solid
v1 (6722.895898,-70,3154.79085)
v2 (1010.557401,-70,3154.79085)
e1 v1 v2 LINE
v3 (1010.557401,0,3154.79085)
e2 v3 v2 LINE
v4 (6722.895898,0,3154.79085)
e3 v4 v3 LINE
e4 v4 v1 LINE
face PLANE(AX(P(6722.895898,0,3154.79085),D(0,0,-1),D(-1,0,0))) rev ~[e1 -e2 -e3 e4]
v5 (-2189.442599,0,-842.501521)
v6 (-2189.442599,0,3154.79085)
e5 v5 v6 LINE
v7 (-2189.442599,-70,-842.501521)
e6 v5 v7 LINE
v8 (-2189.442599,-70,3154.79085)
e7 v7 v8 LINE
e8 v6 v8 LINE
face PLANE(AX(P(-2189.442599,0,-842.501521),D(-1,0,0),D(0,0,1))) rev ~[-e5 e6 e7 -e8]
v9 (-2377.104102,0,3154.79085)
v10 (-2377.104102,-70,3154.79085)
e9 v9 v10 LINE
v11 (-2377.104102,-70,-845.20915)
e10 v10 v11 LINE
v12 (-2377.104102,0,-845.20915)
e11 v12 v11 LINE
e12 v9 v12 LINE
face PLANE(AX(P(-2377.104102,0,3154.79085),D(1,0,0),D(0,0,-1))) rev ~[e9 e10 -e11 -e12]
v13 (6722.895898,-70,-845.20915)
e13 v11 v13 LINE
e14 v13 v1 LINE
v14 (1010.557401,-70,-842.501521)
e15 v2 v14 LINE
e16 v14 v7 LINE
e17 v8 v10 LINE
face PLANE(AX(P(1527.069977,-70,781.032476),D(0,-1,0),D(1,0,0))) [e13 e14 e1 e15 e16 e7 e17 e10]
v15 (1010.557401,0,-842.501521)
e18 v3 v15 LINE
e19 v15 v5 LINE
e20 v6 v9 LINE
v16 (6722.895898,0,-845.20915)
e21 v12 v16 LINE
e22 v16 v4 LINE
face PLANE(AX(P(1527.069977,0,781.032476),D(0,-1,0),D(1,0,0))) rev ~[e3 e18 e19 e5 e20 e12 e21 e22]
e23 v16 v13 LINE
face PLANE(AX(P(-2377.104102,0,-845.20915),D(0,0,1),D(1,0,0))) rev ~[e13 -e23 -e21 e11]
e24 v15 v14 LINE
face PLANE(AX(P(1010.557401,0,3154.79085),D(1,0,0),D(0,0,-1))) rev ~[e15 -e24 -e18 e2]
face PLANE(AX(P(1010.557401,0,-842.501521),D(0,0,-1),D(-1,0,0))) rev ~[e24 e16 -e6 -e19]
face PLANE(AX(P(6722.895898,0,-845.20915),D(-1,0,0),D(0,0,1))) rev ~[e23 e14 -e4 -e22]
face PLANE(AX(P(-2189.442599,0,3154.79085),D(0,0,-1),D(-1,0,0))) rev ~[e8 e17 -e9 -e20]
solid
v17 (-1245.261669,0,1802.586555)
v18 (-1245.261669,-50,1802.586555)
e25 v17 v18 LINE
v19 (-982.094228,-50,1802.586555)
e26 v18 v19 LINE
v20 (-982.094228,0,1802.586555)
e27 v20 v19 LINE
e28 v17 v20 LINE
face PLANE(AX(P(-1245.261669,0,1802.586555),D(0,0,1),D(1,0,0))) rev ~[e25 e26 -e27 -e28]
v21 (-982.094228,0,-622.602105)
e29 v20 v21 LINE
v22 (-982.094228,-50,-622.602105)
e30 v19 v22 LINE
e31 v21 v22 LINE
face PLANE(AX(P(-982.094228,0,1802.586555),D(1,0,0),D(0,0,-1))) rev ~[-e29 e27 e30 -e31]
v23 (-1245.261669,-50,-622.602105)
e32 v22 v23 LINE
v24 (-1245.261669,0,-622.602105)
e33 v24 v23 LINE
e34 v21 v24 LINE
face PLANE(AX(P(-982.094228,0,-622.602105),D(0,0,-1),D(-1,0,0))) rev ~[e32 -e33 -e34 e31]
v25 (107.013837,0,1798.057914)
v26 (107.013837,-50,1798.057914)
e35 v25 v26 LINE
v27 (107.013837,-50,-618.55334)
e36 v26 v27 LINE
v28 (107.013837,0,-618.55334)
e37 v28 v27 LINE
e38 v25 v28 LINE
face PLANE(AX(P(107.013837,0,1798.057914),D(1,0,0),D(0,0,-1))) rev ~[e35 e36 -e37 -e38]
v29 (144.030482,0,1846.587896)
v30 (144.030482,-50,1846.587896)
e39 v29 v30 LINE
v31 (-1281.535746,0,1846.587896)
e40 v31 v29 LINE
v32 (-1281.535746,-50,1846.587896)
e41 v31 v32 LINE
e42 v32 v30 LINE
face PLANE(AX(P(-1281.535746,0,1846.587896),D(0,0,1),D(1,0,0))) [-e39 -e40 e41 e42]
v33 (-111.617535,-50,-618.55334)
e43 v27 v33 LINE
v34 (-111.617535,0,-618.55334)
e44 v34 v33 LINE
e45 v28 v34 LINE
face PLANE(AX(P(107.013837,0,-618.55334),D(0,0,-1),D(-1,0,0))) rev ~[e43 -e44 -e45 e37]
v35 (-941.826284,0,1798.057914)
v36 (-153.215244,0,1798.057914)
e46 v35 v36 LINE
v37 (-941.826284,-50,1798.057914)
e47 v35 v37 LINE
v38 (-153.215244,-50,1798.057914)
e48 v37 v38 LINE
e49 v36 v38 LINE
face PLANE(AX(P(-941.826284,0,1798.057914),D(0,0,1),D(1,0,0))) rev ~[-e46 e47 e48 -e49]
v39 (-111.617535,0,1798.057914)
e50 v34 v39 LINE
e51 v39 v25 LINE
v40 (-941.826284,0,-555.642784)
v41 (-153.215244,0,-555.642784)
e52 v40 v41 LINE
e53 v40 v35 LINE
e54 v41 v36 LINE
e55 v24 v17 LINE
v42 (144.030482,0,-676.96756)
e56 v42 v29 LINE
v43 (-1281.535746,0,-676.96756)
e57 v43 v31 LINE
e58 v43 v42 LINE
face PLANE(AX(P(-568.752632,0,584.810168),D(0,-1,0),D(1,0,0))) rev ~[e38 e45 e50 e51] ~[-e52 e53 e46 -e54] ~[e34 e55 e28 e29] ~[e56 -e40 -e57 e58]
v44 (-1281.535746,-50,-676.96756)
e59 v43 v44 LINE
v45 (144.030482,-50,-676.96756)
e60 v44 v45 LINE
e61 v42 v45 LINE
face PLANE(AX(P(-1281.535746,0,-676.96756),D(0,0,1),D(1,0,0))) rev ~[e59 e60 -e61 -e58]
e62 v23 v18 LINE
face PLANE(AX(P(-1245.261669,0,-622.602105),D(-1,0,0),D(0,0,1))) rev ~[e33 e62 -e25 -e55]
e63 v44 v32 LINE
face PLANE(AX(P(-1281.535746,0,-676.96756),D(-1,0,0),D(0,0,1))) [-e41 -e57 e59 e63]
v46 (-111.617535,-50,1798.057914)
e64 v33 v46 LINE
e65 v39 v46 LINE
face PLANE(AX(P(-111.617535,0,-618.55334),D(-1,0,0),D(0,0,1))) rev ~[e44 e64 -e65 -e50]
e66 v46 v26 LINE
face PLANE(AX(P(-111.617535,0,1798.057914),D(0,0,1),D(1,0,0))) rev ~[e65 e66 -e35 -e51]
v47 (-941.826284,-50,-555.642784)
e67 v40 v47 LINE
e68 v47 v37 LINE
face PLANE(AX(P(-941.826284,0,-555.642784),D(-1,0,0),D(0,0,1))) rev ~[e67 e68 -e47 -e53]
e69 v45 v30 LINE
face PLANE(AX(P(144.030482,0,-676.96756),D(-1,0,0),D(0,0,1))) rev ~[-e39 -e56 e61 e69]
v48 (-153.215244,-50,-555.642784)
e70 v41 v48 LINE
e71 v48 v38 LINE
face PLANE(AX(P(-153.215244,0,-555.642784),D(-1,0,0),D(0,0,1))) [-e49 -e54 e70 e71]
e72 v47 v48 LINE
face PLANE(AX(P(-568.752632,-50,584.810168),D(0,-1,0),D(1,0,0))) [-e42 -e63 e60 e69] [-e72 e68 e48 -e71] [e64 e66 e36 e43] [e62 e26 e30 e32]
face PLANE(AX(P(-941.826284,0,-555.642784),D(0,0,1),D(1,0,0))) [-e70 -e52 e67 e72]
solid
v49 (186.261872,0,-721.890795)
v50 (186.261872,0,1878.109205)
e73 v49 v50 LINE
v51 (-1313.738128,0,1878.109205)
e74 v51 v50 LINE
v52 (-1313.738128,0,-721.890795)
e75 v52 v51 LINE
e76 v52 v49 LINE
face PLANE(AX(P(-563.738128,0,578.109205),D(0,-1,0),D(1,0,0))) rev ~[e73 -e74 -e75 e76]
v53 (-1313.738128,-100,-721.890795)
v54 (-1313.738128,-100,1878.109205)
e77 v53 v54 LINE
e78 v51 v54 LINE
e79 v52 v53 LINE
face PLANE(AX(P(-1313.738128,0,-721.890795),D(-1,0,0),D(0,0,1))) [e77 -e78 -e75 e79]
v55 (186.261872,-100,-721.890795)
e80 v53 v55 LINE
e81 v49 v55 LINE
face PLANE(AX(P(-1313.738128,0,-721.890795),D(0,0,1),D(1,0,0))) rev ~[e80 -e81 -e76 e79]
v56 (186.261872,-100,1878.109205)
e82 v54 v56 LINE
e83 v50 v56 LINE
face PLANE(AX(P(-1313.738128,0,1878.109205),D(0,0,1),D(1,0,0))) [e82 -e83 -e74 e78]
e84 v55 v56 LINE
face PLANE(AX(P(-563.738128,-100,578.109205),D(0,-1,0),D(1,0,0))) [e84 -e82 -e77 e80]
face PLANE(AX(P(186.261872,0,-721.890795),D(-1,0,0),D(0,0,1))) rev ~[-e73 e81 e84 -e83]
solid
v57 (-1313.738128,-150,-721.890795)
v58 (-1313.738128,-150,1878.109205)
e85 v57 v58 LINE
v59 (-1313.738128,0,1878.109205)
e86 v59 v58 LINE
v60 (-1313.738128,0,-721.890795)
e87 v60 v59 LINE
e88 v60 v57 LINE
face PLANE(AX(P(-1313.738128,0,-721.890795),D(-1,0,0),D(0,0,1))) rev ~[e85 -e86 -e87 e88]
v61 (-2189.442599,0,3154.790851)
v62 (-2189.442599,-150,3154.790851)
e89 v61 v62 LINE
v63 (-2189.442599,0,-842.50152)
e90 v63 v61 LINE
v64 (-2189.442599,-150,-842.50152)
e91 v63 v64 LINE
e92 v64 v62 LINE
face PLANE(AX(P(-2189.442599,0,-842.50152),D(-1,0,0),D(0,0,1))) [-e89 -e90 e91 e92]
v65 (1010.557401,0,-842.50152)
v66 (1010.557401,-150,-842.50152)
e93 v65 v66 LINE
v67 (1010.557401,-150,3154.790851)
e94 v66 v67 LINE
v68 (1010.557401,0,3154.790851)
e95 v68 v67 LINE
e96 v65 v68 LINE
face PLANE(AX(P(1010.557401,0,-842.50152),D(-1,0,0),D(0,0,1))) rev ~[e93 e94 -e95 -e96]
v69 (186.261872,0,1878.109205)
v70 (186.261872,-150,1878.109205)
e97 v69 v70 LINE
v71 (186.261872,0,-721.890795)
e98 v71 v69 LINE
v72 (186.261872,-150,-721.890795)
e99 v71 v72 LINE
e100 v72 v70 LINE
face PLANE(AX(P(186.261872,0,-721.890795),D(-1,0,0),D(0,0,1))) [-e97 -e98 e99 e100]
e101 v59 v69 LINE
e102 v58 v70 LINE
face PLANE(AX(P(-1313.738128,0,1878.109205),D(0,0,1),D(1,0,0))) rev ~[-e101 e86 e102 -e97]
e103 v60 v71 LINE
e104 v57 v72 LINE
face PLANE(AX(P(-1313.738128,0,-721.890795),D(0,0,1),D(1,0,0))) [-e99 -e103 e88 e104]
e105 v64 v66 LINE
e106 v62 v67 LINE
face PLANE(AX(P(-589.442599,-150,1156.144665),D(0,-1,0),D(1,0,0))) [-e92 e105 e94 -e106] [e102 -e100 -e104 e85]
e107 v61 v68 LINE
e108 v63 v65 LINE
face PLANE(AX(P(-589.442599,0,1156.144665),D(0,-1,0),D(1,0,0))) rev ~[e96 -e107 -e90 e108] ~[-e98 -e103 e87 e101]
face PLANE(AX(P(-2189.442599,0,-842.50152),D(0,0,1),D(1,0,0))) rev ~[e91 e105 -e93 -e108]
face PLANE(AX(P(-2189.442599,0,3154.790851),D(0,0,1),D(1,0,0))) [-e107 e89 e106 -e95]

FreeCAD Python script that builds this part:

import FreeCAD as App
import Part
import Sketcher


def add_polygon(sketch, points):
    """Adds a closed chain of lines whose ends are joined by coincident constraints."""
    first, n = sketch.GeometryCount, len(points)
    for a, b in zip(points, points[1:] + points[:1]):
        sketch.addGeometry(Part.LineSegment(App.Vector(*a, 0), App.Vector(*b, 0)), False)
    for i in range(n):
        sketch.addConstraint(Sketcher.Constraint("Coincident", first + i, 2, first + (i + 1) % n, 1))

doc = App.newDocument("Part")
body = doc.addObject("PartDesign::Body", "Body")

sketch1 = body.newObject("Sketcher::SketchObject", "Sketch")
sketch1.AttachmentSupport = (doc.getObject("XZ_Plane"), [""])
sketch1.MapMode = "FlatFace"
add_polygon(sketch1, [(-2189.442599, 3154.79085), (-2377.104102, 3154.79085), (-2377.104102, -845.20915), (6722.895898, -845.20915), (6722.895898, 3154.79085), (1010.557401, 3154.79085), (1010.557401, -842.501521), (-2189.442599, -842.501521)])
sketch1.addConstraint([
    Sketcher.Constraint("Horizontal", 0),
    Sketcher.Constraint("Vertical", 1),
    Sketcher.Constraint("Horizontal", 2),
    Sketcher.Constraint("Vertical", 3),
    Sketcher.Constraint("Horizontal", 4),
    Sketcher.Constraint("Vertical", 5),
    Sketcher.Constraint("Horizontal", 6),
    Sketcher.Constraint("Vertical", 7),
    Sketcher.Constraint("Horizontal", 0, 2, 3, 2),
    Sketcher.Constraint("DistanceX", 2, 1, 2, 2, 9100.0),
    Sketcher.Constraint("DistanceX", 6, 2, 6, 1, 3200.0),
    Sketcher.Constraint("DistanceY", 1, 2, 1, 1, 4000.0),
    Sketcher.Constraint("DistanceY", 5, 2, 5, 1, 3997.292371),
    Sketcher.Constraint("DistanceX", 0, 2, -1, 1, 2377.104102),
    Sketcher.Constraint("DistanceX", -1, 1, 4, 2, 1010.557401),
    Sketcher.Constraint("DistanceY", -1, 1, 0, 2, 3154.79085),
])
pad1 = body.newObject("PartDesign::Pad", "Pad")
pad1.Profile = sketch1
pad1.Length = 70
body2 = doc.addObject("PartDesign::Body", "Body001")

sketch2 = body2.newObject("Sketcher::SketchObject", "Sketch001")
sketch2.AttachmentSupport = (doc.getObject("XZ_Plane001"), [""])
sketch2.MapMode = "FlatFace"
add_polygon(sketch2, [(-2189.442599, 3154.790851), (-2189.442599, -842.50152), (1010.557401, -842.50152), (1010.557401, 3154.790851)])
add_polygon(sketch2, [(186.261872, -721.890795), (-1313.738128, -721.890795), (-1313.738128, 1878.109205), (186.261872, 1878.109205)])
sketch2.addConstraint([
    Sketcher.Constraint("Vertical", 0),
    Sketcher.Constraint("Horizontal", 1),
    Sketcher.Constraint("Vertical", 2),
    Sketcher.Constraint("Horizontal", 3),
    Sketcher.Constraint("Horizontal", 4),
    Sketcher.Constraint("Vertical", 5),
    Sketcher.Constraint("Horizontal", 6),
    Sketcher.Constraint("Vertical", 7),
    Sketcher.Constraint("DistanceX", 1, 1, 1, 2, 3200.0),
    Sketcher.Constraint("DistanceX", 4, 2, 4, 1, 1500.0),
    Sketcher.Constraint("DistanceY", 5, 1, 5, 2, 2600.0),
    Sketcher.Constraint("DistanceY", 0, 2, 0, 1, 3997.292371),
    Sketcher.Constraint("DistanceX", 0, 2, -1, 1, 2189.442599),
    Sketcher.Constraint("DistanceY", 0, 2, -1, 1, 842.50152),
    Sketcher.Constraint("DistanceX", 4, 2, -1, 1, 1313.738128),
    Sketcher.Constraint("DistanceY", 4, 2, -1, 1, 721.890795),
])
pad2 = body2.newObject("PartDesign::Pad", "Pad001")
pad2.Profile = sketch2
pad2.Length = 150
body3 = doc.addObject("PartDesign::Body", "Body002")

sketch3 = body3.newObject("Sketcher::SketchObject", "Sketch002")
sketch3.AttachmentSupport = (doc.getObject("XZ_Plane002"), [""])
sketch3.MapMode = "FlatFace"
add_polygon(sketch3, [(-1313.738128, 1878.109205), (-1313.738128, -721.890795), (186.261872, -721.890795), (186.261872, 1878.109205)])
sketch3.addConstraint([
    Sketcher.Constraint("Vertical", 0),
    Sketcher.Constraint("Horizontal", 1),
    Sketcher.Constraint("Vertical", 2),
    Sketcher.Constraint("Horizontal", 3),
    Sketcher.Constraint("DistanceX", 1, 1, 1, 2, 1500.0),
    Sketcher.Constraint("DistanceY", 0, 2, 0, 1, 2600.0),
    Sketcher.Constraint("DistanceX", 0, 2, -1, 1, 1313.738128),
    Sketcher.Constraint("DistanceY", 0, 2, -1, 1, 721.890795),
])
pad3 = body3.newObject("PartDesign::Pad", "Pad002")
pad3.Profile = sketch3
pad3.Length = 100
body4 = doc.addObject("PartDesign::Body", "Body003")

sketch4 = body4.newObject("Sketcher::SketchObject", "Sketch003")
sketch4.AttachmentSupport = (doc.getObject("XZ_Plane003"), [""])
sketch4.MapMode = "FlatFace"
add_polygon(sketch4, [(-1281.535746, 1846.587896), (-1281.535746, -676.96756), (144.030482, -676.96756), (144.030482, 1846.587896)])
add_polygon(sketch4, [(-111.617535, -618.55334), (-111.617535, 1798.057914), (107.013837, 1798.057914), (107.013837, -618.55334)])
add_polygon(sketch4, [(-1245.261669, -622.602105), (-1245.261669, 1802.586555), (-982.094228, 1802.586555), (-982.094228, -622.602105)])
add_polygon(sketch4, [(-153.215244, -555.642784), (-941.826284, -555.642784), (-941.826284, 1798.057914), (-153.215244, 1798.057914)])
sketch4.addConstraint([
    Sketcher.Constraint("Vertical", 0),
    Sketcher.Constraint("Horizontal", 1),
    Sketcher.Constraint("Vertical", 2),
    Sketcher.Constraint("Horizontal", 3),
    Sketcher.Constraint("Vertical", 4),
    Sketcher.Constraint("Horizontal", 5),
    Sketcher.Constraint("Vertical", 6),
    Sketcher.Constraint("Horizontal", 7),
    Sketcher.Constraint("Vertical", 8),
    Sketcher.Constraint("Horizontal", 9),
    Sketcher.Constraint("Vertical", 10),
    Sketcher.Constraint("Horizontal", 11),
    Sketcher.Constraint("Horizontal", 12),
    Sketcher.Constraint("Vertical", 13),
    Sketcher.Constraint("Horizontal", 14),
    Sketcher.Constraint("Vertical", 15),
    Sketcher.Constraint("Horizontal", 5, 2, 13, 2),
    Sketcher.Constraint("DistanceY", 13, 1, 13, 2, 2353.700698),
    Sketcher.Constraint("DistanceX", 5, 1, 5, 2, 218.631372),
    Sketcher.Constraint("DistanceX", 9, 1, 9, 2, 263.167441),
    Sketcher.Constraint("DistanceX", 12, 2, 12, 1, 788.61104),
    Sketcher.Constraint("DistanceY", 8, 1, 8, 2, 2425.18866),
    Sketcher.Constraint("DistanceX", 1, 1, 1, 2, 1425.566227),
    Sketcher.Constraint("DistanceY", 0, 2, 0, 1, 2523.555457),
    Sketcher.Constraint("DistanceY", 4, 1, 4, 2, 2416.611254),
    Sketcher.Constraint("DistanceY", 0, 2, -1, 1, 676.96756),
    Sketcher.Constraint("DistanceX", -1, 1, 1, 2, 144.030482),
    Sketcher.Constraint("DistanceY", 6, 2, -1, 1, 618.55334),
    Sketcher.Constraint("DistanceX", 8, 2, -1, 1, 1245.261669),
    Sketcher.Constraint("DistanceX", 3, 2, 4, 2, 1169.91821),
    Sketcher.Constraint("DistanceY", 8, 2, 3, 2, 44.001341),
    Sketcher.Constraint("DistanceX", 0, 2, 12, 2, 339.709462),
])
pad4 = body4.newObject("PartDesign::Pad", "Pad003")
pad4.Profile = sketch4
pad4.Length = 50

doc.recompute()
